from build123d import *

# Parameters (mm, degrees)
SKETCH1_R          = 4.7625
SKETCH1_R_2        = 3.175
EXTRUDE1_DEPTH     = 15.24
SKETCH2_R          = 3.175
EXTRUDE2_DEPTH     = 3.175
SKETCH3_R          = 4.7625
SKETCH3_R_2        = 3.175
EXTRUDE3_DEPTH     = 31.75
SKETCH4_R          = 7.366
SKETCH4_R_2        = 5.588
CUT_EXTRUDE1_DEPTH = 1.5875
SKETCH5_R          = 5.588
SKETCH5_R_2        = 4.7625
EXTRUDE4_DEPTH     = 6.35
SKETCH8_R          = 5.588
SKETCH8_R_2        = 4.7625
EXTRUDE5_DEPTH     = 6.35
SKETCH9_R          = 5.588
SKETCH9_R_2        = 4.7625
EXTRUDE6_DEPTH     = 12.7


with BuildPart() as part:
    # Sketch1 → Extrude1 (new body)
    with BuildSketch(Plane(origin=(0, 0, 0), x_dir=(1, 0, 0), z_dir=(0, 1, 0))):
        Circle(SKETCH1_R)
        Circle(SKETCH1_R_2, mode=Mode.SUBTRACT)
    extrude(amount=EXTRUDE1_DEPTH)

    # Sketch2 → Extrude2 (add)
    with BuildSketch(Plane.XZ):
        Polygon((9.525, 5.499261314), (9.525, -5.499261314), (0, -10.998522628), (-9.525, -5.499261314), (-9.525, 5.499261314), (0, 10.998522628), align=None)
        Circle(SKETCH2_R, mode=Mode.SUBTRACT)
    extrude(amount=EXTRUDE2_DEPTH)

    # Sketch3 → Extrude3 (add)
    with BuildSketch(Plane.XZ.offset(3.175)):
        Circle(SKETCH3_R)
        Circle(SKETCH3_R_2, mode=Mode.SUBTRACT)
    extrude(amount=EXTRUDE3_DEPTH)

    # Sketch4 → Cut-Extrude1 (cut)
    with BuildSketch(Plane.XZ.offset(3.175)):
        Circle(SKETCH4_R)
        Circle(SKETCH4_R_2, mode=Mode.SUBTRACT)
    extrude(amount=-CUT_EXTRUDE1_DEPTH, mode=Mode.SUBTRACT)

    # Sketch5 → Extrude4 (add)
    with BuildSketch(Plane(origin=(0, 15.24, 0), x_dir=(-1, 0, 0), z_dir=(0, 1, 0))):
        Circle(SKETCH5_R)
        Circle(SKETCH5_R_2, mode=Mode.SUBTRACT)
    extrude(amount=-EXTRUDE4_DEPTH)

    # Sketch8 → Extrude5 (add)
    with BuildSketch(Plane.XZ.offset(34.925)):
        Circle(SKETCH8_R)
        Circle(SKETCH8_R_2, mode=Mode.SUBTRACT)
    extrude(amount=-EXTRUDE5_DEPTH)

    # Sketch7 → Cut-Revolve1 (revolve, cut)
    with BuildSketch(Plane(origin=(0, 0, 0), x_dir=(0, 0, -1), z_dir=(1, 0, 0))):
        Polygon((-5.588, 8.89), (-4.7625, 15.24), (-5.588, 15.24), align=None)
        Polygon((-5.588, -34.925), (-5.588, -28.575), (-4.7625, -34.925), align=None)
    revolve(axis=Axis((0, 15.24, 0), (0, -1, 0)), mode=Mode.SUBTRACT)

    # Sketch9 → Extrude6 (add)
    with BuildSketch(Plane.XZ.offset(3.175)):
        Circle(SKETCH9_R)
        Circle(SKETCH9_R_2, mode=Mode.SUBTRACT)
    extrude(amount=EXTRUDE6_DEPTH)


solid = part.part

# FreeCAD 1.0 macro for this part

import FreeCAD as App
import Part
import Sketcher
from FreeCAD import Vector
Q = App.Units.Quantity


def add_polygon(sketch, points):
    """Adds a closed chain of lines whose ends are joined by coincident constraints."""
    first, n = sketch.GeometryCount, len(points)
    for a, b in zip(points, points[1:] + points[:1]):
        sketch.addGeometry(Part.LineSegment(App.Vector(*a, 0), App.Vector(*b, 0)), False)
    for i in range(n):
        sketch.addConstraint(Sketcher.Constraint("Coincident", first + i, 2, first + (i + 1) % n, 1))

doc = App.newDocument("Part")
body = doc.addObject("PartDesign::Body", "Body")

# Sketch on XZ plane
sketch1 = body.newObject("Sketcher::SketchObject", "Sketch")
sketch1.AttachmentSupport = (doc.getObject("XZ_Plane"), [""])
sketch1.MapMode = "FlatFace"
sketch1.addGeometry([
    Part.Circle(Vector(0, 0, 0), Vector(0, 0, 1), 4.8),
    Part.Circle(Vector(0, 0, 0), Vector(0, 0, 1), 3.2),
], False)
sketch1.addConstraint([
    Sketcher.Constraint("Coincident", 0, 3, -1, 1),
    Sketcher.Constraint("Coincident", 1, 3, -1, 1),
    Sketcher.Constraint("Diameter", 1, Q("0.25 in")),
    Sketcher.Constraint("Diameter", 0, Q("0.375 in")),
])
pad1 = body.newObject("PartDesign::Pad", "Pad")
pad1.Profile = sketch1
pad1.Length = Q("0.6 in")
pad1.Reversed = True

# Sketch on XZ plane
sketch2 = body.newObject("Sketcher::SketchObject", "Sketch001")
sketch2.AttachmentSupport = (doc.getObject("XZ_Plane"), [""])
sketch2.MapMode = "FlatFace"
add_polygon(sketch2, [(9.5, -5.5), (9.5, 5.5), (0, 11), (-9.5, 5.5), (-9.5, -5.5), (0, -11)])  # lines 0-5
sketch2.addGeometry(Part.Circle(Vector(0, 0, 0), Vector(0, 0, 1), 3.2), False)  # 6
sketch2.addConstraint([
    Sketcher.Constraint("Vertical", 0),
    Sketcher.Constraint("Vertical", 3),
    Sketcher.Constraint("Coincident", 6, 3, -1, 1),
    Sketcher.Constraint("Symmetric", 0, 2, 3, 2, -1, 1),
    Sketcher.Constraint("Symmetric", 1, 2, 4, 2, -1, 1),
    Sketcher.Constraint("PointOnObject", 1, 2, -2),
    Sketcher.Constraint("Parallel", 2, 5),
    Sketcher.Constraint("Horizontal", 0, 2, 2, 2),
    Sketcher.Constraint("Diameter", 6, Q("0.25 in")),
    Sketcher.Constraint("Angle", 1, Q("150 deg")),
    Sketcher.Constraint("DistanceX", 2, 2, 0, 2, Q("0.75 in")),
    Sketcher.Constraint("DistanceY", 0, 1, 0, 2, 10.998523),
])
pad2 = body.newObject("PartDesign::Pad", "Pad001")
pad2.Profile = sketch2
pad2.Length = Q("0.125 in")

# Sketch on XZ plane
sketch3 = body.newObject("Sketcher::SketchObject", "Sketch002")
sketch3.AttachmentSupport = (doc.getObject("XZ_Plane"), [""])
sketch3.MapMode = "FlatFace"
sketch3.AttachmentOffset = App.Placement(Vector(0, 0, 0.125 * 25.4), App.Rotation())
sketch3.addGeometry([
    Part.Circle(Vector(0, 0, 0), Vector(0, 0, 1), 4.8),
    Part.Circle(Vector(0, 0, 0), Vector(0, 0, 1), 3.2),
], False)
sketch3.addConstraint([
    Sketcher.Constraint("Coincident", 0, 3, -1, 1),
    Sketcher.Constraint("Coincident", 1, 3, -1, 1),
    Sketcher.Constraint("Diameter", 1, Q("0.25 in")),
    Sketcher.Constraint("Diameter", 0, Q("0.375 in")),
])
pad3 = body.newObject("PartDesign::Pad", "Pad002")
pad3.Profile = sketch3
pad3.Length = Q("1.25 in")

# Sketch on XZ plane
sketch4 = body.newObject("Sketcher::SketchObject", "Sketch003")
sketch4.AttachmentSupport = (doc.getObject("XZ_Plane"), [""])
sketch4.MapMode = "FlatFace"
sketch4.AttachmentOffset = App.Placement(Vector(0, 0, 0.125 * 25.4), App.Rotation())
sketch4.addGeometry([
    Part.Circle(Vector(0, 0, 0), Vector(0, 0, 1), 7),
    Part.Circle(Vector(0, 0, 0), Vector(0, 0, 1), 6),
], False)
sketch4.addConstraint([
    Sketcher.Constraint("Coincident", 0, 3, -1, 1),
    Sketcher.Constraint("Coincident", 1, 3, -1, 1),
    Sketcher.Constraint("Diameter", 0, Q("0.58 in")),
    Sketcher.Constraint("Diameter", 1, Q("0.44 in")),
])
pocket1 = body.newObject("PartDesign::Pocket", "Pocket")
pocket1.Profile = sketch4
pocket1.Length = Q("0.0625 in")

# Sketch on XZ plane
sketch5 = body.newObject("Sketcher::SketchObject", "Sketch004")
sketch5.AttachmentSupport = (doc.getObject("XZ_Plane"), [""])
sketch5.MapMode = "FlatFace"
sketch5.AttachmentOffset = App.Placement(Vector(0, 0, -0.6 * 25.4), App.Rotation())
sketch5.addGeometry([
    Part.Circle(Vector(0, 0, 0), Vector(0, 0, 1), 5.6),
    Part.Circle(Vector(0, 0, 0), Vector(0, 0, 1), 4.8),
], False)
sketch5.addConstraint([
    Sketcher.Constraint("Coincident", 0, 3, -1, 1),
    Sketcher.Constraint("Coincident", 1, 3, -1, 1),
    Sketcher.Constraint("Diameter", 0, Q("0.44 in")),
    Sketcher.Constraint("Diameter", 1, Q("0.375 in")),
])
pad4 = body.newObject("PartDesign::Pad", "Pad003")
pad4.Profile = sketch5
pad4.Length = Q("0.25 in")

# Sketch on XZ plane
sketch6 = body.newObject("Sketcher::SketchObject", "Sketch005")
sketch6.AttachmentSupport = (doc.getObject("XZ_Plane"), [""])
sketch6.MapMode = "FlatFace"
sketch6.AttachmentOffset = App.Placement(Vector(0, 0, 1.375 * 25.4), App.Rotation())
sketch6.addGeometry([
    Part.Circle(Vector(0, 0, 0), Vector(0, 0, 1), 5.6),
    Part.Circle(Vector(0, 0, 0), Vector(0, 0, 1), 4.8),
], False)
sketch6.addConstraint([
    Sketcher.Constraint("Coincident", 0, 3, -1, 1),
    Sketcher.Constraint("Coincident", 1, 3, -1, 1),
    Sketcher.Constraint("Diameter", 0, Q("0.44 in")),
    Sketcher.Constraint("Diameter", 1, Q("0.375 in")),
])
pad5 = body.newObject("PartDesign::Pad", "Pad004")
pad5.Profile = sketch6
pad5.Length = Q("0.25 in")
pad5.Reversed = True

# Sketch on YZ plane
sketch7 = body.newObject("Sketcher::SketchObject", "Sketch006")
sketch7.AttachmentSupport = (doc.getObject("YZ_Plane"), [""])
sketch7.MapMode = "FlatFace"
add_polygon(sketch7, [(8.9, 5.6), (15.2, 4.8), (15.2, 5.6)])  # lines 0-2
add_polygon(sketch7, [(-28.6, 5.6), (-34.9, 5.6), (-34.9, 4.8)])  # lines 3-5
sketch7.addConstraint([
    Sketcher.Constraint("Vertical", 1),
    Sketcher.Constraint("Horizontal", 2),
    Sketcher.Constraint("Horizontal", 3),
    Sketcher.Constraint("Vertical", 4),
    Sketcher.Constraint("Horizontal", 2, 2, 3, 2),
    Sketcher.Constraint("Horizontal", 0, 2, 4, 2),
    Sketcher.Constraint("Equal", 2, 3),
    Sketcher.Constraint("DistanceX", 2, 2, 2, 1, Q("0.25 in")),
    Sketcher.Constraint("DistanceX", -1, 1, 0, 2, Q("0.6 in")),
    Sketcher.Constraint("DistanceY", -1, 1, 1, 2, Q("0.22 in")),
    Sketcher.Constraint("DistanceY", 1, 1, 1, 2, Q("0.0325 in")),
    Sketcher.Constraint("DistanceX", 3, 2, -1, 1, Q("1.375 in")),
])
groove = body.newObject("PartDesign::Groove", "Groove")
groove.Profile = sketch7
groove.ReferenceAxis = (sketch7, ["H_Axis"])
groove.Angle = 360

# Sketch on XZ plane
sketch8 = body.newObject("Sketcher::SketchObject", "Sketch007")
sketch8.AttachmentSupport = (doc.getObject("XZ_Plane"), [""])
sketch8.MapMode = "FlatFace"
sketch8.AttachmentOffset = App.Placement(Vector(0, 0, 0.125 * 25.4), App.Rotation())
sketch8.addGeometry([
    Part.Circle(Vector(0, 0, 0), Vector(0, 0, 1), 5.6),
    Part.Circle(Vector(0, 0, 0), Vector(0, 0, 1), 4.8),
], False)
sketch8.addConstraint([
    Sketcher.Constraint("Coincident", 0, 3, -1, 1),
    Sketcher.Constraint("Coincident", 1, 3, -1, 1),
    Sketcher.Constraint("Diameter", 0, Q("0.44 in")),
    Sketcher.Constraint("Diameter", 1, Q("0.375 in")),
])
pad6 = body.newObject("PartDesign::Pad", "Pad005")
pad6.Profile = sketch8
pad6.Length = Q("0.5 in")

doc.recompute()
